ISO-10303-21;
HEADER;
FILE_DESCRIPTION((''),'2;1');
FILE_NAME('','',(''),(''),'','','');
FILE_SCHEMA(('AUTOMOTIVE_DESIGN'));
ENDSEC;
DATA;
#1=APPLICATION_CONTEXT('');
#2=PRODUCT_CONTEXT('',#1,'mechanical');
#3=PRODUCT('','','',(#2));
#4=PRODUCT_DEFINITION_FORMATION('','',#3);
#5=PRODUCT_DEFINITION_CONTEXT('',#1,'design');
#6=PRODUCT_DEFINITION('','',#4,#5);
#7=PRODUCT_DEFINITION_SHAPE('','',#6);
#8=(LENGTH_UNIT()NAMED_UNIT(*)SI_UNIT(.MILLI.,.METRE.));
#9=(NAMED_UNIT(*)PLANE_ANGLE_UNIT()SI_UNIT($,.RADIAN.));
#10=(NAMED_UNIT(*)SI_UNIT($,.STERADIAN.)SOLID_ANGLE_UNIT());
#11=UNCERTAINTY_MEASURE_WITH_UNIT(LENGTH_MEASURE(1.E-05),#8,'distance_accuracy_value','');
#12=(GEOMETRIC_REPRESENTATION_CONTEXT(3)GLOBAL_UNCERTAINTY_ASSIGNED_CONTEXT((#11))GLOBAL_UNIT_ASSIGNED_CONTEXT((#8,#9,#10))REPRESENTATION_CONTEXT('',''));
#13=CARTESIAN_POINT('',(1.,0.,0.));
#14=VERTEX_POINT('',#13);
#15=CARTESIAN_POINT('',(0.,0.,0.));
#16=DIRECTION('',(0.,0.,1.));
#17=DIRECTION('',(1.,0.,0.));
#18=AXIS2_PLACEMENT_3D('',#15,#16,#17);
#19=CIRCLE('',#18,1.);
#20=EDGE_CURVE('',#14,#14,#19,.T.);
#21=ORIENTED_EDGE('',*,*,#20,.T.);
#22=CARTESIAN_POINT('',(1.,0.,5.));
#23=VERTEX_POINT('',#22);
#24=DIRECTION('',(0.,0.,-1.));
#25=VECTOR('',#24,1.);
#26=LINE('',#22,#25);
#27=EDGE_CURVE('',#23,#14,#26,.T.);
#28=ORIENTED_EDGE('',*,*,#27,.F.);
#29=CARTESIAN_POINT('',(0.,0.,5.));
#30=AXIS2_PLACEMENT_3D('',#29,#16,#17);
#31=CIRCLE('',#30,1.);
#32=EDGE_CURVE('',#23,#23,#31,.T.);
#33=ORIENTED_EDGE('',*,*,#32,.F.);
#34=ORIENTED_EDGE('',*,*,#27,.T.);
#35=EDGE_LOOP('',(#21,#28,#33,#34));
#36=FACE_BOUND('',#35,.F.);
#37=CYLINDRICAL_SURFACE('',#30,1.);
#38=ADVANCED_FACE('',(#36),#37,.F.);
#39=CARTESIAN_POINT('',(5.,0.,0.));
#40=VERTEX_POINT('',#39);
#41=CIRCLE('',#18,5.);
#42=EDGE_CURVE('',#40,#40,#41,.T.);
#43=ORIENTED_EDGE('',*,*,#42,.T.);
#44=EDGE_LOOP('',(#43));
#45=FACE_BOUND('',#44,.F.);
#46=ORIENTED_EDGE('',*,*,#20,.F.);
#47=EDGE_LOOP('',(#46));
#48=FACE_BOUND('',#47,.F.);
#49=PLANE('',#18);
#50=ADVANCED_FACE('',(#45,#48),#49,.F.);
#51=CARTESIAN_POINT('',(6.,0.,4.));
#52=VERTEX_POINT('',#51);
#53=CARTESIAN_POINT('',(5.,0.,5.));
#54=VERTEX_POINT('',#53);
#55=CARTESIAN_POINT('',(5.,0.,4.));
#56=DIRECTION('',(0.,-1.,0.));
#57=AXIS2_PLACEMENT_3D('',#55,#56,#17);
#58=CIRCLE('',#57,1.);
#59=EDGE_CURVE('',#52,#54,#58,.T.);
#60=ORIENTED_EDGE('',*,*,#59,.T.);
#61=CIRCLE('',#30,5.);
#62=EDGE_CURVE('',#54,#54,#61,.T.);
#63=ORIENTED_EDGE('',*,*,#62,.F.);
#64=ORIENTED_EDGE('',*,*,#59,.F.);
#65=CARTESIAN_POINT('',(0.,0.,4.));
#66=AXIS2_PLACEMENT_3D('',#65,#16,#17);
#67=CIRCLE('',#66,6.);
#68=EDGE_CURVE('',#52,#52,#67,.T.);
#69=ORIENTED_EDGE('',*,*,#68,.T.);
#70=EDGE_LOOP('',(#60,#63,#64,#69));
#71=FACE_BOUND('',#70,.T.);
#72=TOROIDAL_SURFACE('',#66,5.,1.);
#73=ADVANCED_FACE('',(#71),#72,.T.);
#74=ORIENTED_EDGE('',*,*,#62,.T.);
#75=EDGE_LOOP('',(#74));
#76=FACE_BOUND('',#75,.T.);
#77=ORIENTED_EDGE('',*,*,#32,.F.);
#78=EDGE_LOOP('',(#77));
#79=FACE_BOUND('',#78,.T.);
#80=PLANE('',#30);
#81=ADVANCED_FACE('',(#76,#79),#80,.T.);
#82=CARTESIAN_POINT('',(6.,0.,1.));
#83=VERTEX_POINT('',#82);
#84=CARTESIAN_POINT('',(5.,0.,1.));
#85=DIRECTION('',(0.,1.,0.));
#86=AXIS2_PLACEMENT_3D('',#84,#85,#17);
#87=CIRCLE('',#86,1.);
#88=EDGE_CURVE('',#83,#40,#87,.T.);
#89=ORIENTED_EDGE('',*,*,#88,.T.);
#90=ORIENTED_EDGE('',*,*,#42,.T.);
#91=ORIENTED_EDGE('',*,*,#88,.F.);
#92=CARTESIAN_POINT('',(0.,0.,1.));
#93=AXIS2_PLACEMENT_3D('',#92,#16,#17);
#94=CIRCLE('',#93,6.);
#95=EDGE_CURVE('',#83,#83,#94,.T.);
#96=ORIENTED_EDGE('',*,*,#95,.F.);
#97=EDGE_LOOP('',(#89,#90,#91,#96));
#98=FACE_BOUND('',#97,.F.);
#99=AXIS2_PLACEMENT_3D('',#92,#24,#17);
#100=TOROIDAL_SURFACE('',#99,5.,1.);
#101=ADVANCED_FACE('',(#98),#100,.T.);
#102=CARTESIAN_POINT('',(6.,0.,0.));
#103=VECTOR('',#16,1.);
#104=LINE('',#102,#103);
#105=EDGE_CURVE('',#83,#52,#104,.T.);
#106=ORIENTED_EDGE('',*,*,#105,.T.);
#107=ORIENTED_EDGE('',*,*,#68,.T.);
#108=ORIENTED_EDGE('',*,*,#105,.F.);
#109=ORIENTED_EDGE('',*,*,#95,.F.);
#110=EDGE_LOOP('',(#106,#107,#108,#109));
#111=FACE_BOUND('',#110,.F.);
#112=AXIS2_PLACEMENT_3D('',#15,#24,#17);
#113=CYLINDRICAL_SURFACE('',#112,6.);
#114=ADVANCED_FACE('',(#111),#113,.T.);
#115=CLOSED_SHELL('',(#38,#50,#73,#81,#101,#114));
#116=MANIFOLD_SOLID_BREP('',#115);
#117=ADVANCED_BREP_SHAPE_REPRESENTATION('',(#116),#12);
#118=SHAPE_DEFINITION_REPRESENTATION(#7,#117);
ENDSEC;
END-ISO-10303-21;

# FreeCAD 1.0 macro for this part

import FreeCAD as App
import Part
import Sketcher


def edges_at(feature, points):
    """Names of the edges that pass closest to the given points."""
    edges = feature.Shape.Edges
    near = lambda p: min(range(len(edges)), key=lambda i: edges[i].distToShape(Part.Vertex(*p))[0])
    return sorted({f"Edge{near(p) + 1}" for p in points})

doc = App.newDocument("Part")
body = doc.addObject("PartDesign::Body", "Body")

# Sketch on XY plane
sketch1 = body.newObject("Sketcher::SketchObject", "Sketch")
sketch1.AttachmentSupport = (doc.getObject("XY_Plane"), [""])
sketch1.MapMode = "FlatFace"
sketch1.addGeometry(Part.Circle(App.Vector(0, 0, 0), App.Vector(0, 0, 1), 6), False)
sketch1.addConstraint(Sketcher.Constraint("Coincident", 0, 3, -1, 1))
sketch1.addConstraint(Sketcher.Constraint("Diameter", 0, 12.0))
pad1 = body.newObject("PartDesign::Pad", "Pad")
pad1.Profile = sketch1
pad1.Length = 5

# Sketch on XY plane
sketch2 = body.newObject("Sketcher::SketchObject", "Sketch001")
sketch2.AttachmentSupport = (doc.getObject("XY_Plane"), [""])
sketch2.MapMode = "FlatFace"
sketch2.AttachmentOffset = App.Placement(App.Vector(0, 0, 5), App.Rotation())
sketch2.addGeometry(Part.Circle(App.Vector(0, 0, 0), App.Vector(0, 0, 1), 1), False)
sketch2.addConstraint(Sketcher.Constraint("Coincident", 0, 3, -1, 1))
sketch2.addConstraint(Sketcher.Constraint("Diameter", 0, 2.0))
pocket1 = body.newObject("PartDesign::Pocket", "Pocket")
pocket1.Profile = sketch2
pocket1.Length = 5
doc.recompute()

fillet = body.newObject("PartDesign::Fillet", "Fillet")
fillet.Base = (pocket1, edges_at(pocket1, [(-6, 0, 5), (-6, 0, 0)]))
fillet.Radius = 1

doc.recompute()
